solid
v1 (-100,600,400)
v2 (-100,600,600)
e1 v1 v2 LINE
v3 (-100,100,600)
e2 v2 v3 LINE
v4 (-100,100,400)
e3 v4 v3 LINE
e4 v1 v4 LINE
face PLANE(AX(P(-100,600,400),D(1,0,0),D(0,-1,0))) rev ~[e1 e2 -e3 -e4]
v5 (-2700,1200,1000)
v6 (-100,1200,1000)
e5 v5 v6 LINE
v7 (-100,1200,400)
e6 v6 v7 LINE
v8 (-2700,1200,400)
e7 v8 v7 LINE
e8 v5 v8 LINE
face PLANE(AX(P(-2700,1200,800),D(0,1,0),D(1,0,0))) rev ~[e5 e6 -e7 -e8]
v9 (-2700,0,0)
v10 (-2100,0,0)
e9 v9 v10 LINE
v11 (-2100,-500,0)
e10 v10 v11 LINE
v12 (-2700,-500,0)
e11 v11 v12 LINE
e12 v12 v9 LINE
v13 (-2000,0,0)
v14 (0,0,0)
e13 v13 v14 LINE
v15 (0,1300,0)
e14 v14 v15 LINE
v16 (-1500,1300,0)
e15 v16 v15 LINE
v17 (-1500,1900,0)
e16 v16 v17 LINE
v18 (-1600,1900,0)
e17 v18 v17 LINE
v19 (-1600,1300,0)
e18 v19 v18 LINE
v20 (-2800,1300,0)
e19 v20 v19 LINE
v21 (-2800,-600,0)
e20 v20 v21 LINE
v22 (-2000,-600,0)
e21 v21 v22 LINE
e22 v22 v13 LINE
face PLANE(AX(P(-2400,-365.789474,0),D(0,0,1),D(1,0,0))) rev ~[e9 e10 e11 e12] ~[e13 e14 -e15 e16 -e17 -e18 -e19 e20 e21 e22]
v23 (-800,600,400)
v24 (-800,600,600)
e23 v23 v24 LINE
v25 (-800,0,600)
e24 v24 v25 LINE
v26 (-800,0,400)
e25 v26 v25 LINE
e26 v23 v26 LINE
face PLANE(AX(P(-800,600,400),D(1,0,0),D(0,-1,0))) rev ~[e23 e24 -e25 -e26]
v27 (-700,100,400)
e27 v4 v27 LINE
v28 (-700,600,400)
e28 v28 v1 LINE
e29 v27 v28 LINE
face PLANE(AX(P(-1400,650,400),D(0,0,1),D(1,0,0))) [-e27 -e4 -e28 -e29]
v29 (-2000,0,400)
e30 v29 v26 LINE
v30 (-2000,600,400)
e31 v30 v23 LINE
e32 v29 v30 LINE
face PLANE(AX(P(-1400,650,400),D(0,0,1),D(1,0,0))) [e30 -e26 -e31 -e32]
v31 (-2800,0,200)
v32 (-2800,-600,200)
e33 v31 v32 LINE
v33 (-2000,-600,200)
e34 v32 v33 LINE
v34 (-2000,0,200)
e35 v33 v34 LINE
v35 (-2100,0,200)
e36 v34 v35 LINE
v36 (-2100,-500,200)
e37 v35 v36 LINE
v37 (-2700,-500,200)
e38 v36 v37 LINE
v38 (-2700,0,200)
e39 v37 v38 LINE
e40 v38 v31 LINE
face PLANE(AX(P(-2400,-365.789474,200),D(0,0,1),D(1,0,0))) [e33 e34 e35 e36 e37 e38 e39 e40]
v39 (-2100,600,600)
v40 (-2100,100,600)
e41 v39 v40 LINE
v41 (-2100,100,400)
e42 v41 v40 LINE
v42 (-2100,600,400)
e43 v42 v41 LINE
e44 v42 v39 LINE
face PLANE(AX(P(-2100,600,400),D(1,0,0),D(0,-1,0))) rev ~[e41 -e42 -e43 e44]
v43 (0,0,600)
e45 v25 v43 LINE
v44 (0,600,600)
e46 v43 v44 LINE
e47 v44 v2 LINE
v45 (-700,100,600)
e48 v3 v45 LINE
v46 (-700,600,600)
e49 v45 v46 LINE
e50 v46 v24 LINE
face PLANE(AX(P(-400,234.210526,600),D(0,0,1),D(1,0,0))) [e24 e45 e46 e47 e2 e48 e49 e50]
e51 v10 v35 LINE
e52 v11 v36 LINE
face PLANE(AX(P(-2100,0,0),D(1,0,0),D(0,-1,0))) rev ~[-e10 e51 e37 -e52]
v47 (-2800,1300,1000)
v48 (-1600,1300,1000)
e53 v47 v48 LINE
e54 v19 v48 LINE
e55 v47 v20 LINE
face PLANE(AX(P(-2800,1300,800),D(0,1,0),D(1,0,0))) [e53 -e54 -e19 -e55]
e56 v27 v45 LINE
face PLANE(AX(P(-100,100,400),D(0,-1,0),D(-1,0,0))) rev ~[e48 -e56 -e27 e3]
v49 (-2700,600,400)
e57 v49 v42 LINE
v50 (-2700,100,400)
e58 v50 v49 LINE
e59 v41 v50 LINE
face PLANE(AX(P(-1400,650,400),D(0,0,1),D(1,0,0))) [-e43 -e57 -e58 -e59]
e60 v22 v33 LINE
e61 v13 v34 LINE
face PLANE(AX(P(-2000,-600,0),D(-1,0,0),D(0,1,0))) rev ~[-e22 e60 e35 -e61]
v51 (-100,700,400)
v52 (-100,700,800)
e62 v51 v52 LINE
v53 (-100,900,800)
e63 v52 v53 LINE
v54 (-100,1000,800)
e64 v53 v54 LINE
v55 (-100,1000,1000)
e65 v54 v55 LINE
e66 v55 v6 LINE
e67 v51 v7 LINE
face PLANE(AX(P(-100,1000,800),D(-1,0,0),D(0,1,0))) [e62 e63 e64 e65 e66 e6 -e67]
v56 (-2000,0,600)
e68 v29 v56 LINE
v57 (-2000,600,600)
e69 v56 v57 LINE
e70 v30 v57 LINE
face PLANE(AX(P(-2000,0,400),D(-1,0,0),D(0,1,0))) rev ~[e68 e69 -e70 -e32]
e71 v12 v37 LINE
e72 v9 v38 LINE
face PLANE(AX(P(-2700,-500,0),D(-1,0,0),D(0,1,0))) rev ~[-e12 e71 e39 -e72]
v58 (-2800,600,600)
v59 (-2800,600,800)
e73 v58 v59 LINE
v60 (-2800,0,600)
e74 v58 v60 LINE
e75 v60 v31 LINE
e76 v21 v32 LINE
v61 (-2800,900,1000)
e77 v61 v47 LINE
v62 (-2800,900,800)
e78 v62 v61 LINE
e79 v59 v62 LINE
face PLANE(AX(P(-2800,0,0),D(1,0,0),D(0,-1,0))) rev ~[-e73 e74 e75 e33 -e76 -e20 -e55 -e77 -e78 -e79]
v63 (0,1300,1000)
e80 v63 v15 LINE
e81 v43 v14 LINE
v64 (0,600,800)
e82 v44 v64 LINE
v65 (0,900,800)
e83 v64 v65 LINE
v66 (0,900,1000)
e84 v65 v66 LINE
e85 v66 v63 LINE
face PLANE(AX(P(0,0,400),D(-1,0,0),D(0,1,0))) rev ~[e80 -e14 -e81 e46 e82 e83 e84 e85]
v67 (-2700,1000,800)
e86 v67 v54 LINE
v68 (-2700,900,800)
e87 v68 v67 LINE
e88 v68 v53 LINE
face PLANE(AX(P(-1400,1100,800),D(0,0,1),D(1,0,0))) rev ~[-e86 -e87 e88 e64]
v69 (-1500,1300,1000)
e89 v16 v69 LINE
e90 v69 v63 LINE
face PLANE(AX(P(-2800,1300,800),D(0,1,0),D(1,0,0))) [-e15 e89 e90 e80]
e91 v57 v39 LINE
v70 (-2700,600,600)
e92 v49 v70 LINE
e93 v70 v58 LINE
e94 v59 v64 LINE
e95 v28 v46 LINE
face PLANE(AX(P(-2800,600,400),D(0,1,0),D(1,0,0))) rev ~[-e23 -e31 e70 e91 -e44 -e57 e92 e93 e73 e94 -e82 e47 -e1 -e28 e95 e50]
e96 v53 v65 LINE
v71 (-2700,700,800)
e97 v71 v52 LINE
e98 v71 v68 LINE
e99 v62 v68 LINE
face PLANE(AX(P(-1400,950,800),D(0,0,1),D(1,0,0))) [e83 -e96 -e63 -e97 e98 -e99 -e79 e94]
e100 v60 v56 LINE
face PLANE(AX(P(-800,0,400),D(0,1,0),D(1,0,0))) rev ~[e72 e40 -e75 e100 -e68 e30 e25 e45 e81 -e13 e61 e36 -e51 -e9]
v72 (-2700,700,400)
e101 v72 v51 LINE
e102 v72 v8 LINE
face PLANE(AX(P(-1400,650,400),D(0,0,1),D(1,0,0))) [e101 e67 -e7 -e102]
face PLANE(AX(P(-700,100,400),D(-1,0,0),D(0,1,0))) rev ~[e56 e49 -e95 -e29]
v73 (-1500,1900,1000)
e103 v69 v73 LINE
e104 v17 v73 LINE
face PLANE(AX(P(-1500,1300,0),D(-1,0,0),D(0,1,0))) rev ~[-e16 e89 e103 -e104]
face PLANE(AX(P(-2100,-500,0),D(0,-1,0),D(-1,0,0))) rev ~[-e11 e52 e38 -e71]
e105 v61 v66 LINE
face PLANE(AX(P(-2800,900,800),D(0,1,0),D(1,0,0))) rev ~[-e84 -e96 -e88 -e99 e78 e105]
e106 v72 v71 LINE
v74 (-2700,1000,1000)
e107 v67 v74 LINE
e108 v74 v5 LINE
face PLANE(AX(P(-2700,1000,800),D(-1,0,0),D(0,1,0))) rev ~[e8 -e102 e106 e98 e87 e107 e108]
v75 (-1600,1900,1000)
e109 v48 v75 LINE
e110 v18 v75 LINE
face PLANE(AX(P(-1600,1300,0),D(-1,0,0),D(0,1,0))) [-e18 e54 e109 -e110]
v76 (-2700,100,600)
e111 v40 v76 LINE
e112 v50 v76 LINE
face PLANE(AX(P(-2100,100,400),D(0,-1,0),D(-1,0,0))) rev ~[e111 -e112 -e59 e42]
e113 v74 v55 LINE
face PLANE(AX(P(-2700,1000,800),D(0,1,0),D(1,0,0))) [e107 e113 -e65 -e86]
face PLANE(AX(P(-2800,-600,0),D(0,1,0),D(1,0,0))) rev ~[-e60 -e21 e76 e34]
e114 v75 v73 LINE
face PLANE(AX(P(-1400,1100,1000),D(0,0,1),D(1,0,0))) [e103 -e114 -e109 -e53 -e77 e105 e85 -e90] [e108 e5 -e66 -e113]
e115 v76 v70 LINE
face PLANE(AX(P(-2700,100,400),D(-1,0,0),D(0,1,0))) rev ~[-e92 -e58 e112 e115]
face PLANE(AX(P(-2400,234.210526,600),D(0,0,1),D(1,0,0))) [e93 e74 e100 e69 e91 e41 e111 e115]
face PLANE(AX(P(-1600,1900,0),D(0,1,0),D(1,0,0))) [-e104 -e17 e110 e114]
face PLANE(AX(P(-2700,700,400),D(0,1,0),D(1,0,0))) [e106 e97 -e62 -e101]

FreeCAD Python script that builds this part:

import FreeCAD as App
import Part
import Sketcher
from FreeCAD import Vector
Q = App.Units.Quantity

doc = App.newDocument("Part")
body = doc.addObject("PartDesign::Body", "Body")

# Sketch on XY plane
sketch1 = body.newObject("Sketcher::SketchObject", "Sketch")
sketch1.AttachmentSupport = (doc.getObject("XY_Plane"), [""])
sketch1.MapMode = "FlatFace"
sketch1.addGeometry([
    Part.LineSegment(Vector(-2800, 1300, 0), Vector(-2800, 0, 0)),
    Part.LineSegment(Vector(-2800, 0, 0), Vector(0, 0, 0)),
    Part.LineSegment(Vector(0, 0, 0), Vector(0, 1300, 0)),
    Part.LineSegment(Vector(0, 1300, 0), Vector(-2800, 1300, 0)),
], False)
sketch1.addConstraint([
    Sketcher.Constraint("Coincident", 0, 2, 1, 1),
    Sketcher.Constraint("Coincident", 1, 2, 2, 1),
    Sketcher.Constraint("Coincident", 2, 2, 3, 1),
    Sketcher.Constraint("Coincident", 3, 2, 0, 1),
    Sketcher.Constraint("Vertical", 0),
    Sketcher.Constraint("Horizontal", 1),
    Sketcher.Constraint("Vertical", 2),
    Sketcher.Constraint("Horizontal", 3),
    Sketcher.Constraint("Coincident", 1, 2, -1, 1),
    Sketcher.Constraint("DistanceX", 1, 1, 1, 2, Q("2800 mm")),
    Sketcher.Constraint("DistanceY", 0, 2, 0, 1, Q("1300 mm")),
])
pad1 = body.newObject("PartDesign::Pad", "Pad")
pad1.Profile = sketch1
pad1.Length = 400

# Sketch on XY plane
sketch2 = body.newObject("Sketcher::SketchObject", "Sketch001")
sketch2.AttachmentSupport = (doc.getObject("XY_Plane"), [""])
sketch2.MapMode = "FlatFace"
sketch2.AttachmentOffset = App.Placement(Vector(0, 0, 400), App.Rotation())
sketch2.addGeometry([
    Part.LineSegment(Vector(-2800, 1300, 0), Vector(-2800, 600, 0)),  # 0
    Part.LineSegment(Vector(-2800, 600, 0), Vector(0, 600, 0)),  # 1
    Part.LineSegment(Vector(0, 600, 0), Vector(0, 1300, 0)),  # 2
    Part.LineSegment(Vector(0, 1300, 0), Vector(-2800, 1300, 0)),  # 3
    Part.LineSegment(Vector(-100, 700, 0), Vector(-2700, 700, 0)),  # 4
    Part.LineSegment(Vector(-2700, 700, 0), Vector(-2700, 1200, 0)),  # 5
    Part.LineSegment(Vector(-2700, 1200, 0), Vector(-100, 1200, 0)),  # 6
    Part.LineSegment(Vector(-100, 1200, 0), Vector(-100, 700, 0)),  # 7
], False)
sketch2.addConstraint([
    Sketcher.Constraint("Coincident", 0, 2, 1, 1),
    Sketcher.Constraint("Coincident", 1, 2, 2, 1),
    Sketcher.Constraint("Coincident", 2, 2, 3, 1),
    Sketcher.Constraint("Coincident", 3, 2, 0, 1),
    Sketcher.Constraint("Coincident", 4, 2, 5, 1),
    Sketcher.Constraint("Coincident", 5, 2, 6, 1),
    Sketcher.Constraint("Coincident", 6, 2, 7, 1),
    Sketcher.Constraint("Coincident", 7, 2, 4, 1),
    Sketcher.Constraint("Vertical", 0),
    Sketcher.Constraint("Horizontal", 1),
    Sketcher.Constraint("Vertical", 2),
    Sketcher.Constraint("Horizontal", 3),
    Sketcher.Constraint("Horizontal", 4),
    Sketcher.Constraint("Vertical", 5),
    Sketcher.Constraint("Horizontal", 6),
    Sketcher.Constraint("Vertical", 7),
    Sketcher.Constraint("PointOnObject", 1, 2, -2),
    Sketcher.Constraint("DistanceX", 1, 1, 1, 2, Q("2800 mm")),
    Sketcher.Constraint("DistanceX", 4, 2, 4, 1, Q("2600 mm")),
    Sketcher.Constraint("DistanceY", 0, 2, 0, 1, Q("700 mm")),
    Sketcher.Constraint("DistanceY", 5, 1, 5, 2, Q("500 mm")),
    Sketcher.Constraint("DistanceY", -1, 1, 0, 2, Q("600 mm")),
    Sketcher.Constraint("DistanceX", 4, 2, -1, 1, Q("2700 mm")),
    Sketcher.Constraint("DistanceY", -1, 1, 4, 2, Q("700 mm")),
])
pad2 = body.newObject("PartDesign::Pad", "Pad001")
pad2.Profile = sketch2
pad2.Length = 400

# Sketch on XY plane
sketch3 = body.newObject("Sketcher::SketchObject", "Sketch002")
sketch3.AttachmentSupport = (doc.getObject("XY_Plane"), [""])
sketch3.MapMode = "FlatFace"
sketch3.AttachmentOffset = App.Placement(Vector(0, 0, 800), App.Rotation())
sketch3.addGeometry([
    Part.LineSegment(Vector(-2800, 1300, 0), Vector(-2800, 900, 0)),  # 0
    Part.LineSegment(Vector(-2800, 900, 0), Vector(0, 900, 0)),  # 1
    Part.LineSegment(Vector(0, 900, 0), Vector(0, 1300, 0)),  # 2
    Part.LineSegment(Vector(0, 1300, 0), Vector(-2800, 1300, 0)),  # 3
    Part.LineSegment(Vector(-100, 1000, 0), Vector(-2700, 1000, 0)),  # 4
    Part.LineSegment(Vector(-2700, 1000, 0), Vector(-2700, 1200, 0)),  # 5
    Part.LineSegment(Vector(-2700, 1200, 0), Vector(-100, 1200, 0)),  # 6
    Part.LineSegment(Vector(-100, 1200, 0), Vector(-100, 1000, 0)),  # 7
], False)
sketch3.addConstraint([
    Sketcher.Constraint("Coincident", 0, 2, 1, 1),
    Sketcher.Constraint("Coincident", 1, 2, 2, 1),
    Sketcher.Constraint("Coincident", 2, 2, 3, 1),
    Sketcher.Constraint("Coincident", 3, 2, 0, 1),
    Sketcher.Constraint("Coincident", 4, 2, 5, 1),
    Sketcher.Constraint("Coincident", 5, 2, 6, 1),
    Sketcher.Constraint("Coincident", 6, 2, 7, 1),
    Sketcher.Constraint("Coincident", 7, 2, 4, 1),
    Sketcher.Constraint("Vertical", 0),
    Sketcher.Constraint("Horizontal", 1),
    Sketcher.Constraint("Vertical", 2),
    Sketcher.Constraint("Horizontal", 3),
    Sketcher.Constraint("Horizontal", 4),
    Sketcher.Constraint("Vertical", 5),
    Sketcher.Constraint("Horizontal", 6),
    Sketcher.Constraint("Vertical", 7),
    Sketcher.Constraint("PointOnObject", 1, 2, -2),
    Sketcher.Constraint("DistanceX", 1, 1, 1, 2, Q("2800 mm")),
    Sketcher.Constraint("DistanceX", 4, 2, 4, 1, Q("2600 mm")),
    Sketcher.Constraint("DistanceY", 0, 2, 0, 1, Q("400 mm")),
    Sketcher.Constraint("DistanceY", 5, 1, 5, 2, Q("200 mm")),
    Sketcher.Constraint("DistanceY", -1, 1, 0, 2, Q("900 mm")),
    Sketcher.Constraint("DistanceX", 4, 2, -1, 1, Q("2700 mm")),
    Sketcher.Constraint("DistanceY", -1, 1, 4, 2, Q("1000 mm")),
])
pad3 = body.newObject("PartDesign::Pad", "Pad002")
pad3.Profile = sketch3
pad3.Length = 200

# Sketch on XY plane
sketch4 = body.newObject("Sketcher::SketchObject", "Sketch003")
sketch4.AttachmentSupport = (doc.getObject("XY_Plane"), [""])
sketch4.MapMode = "FlatFace"
sketch4.addGeometry([
    Part.LineSegment(Vector(-1600, 1900, 0), Vector(-1600, 1300, 0)),
    Part.LineSegment(Vector(-1600, 1300, 0), Vector(-1500, 1300, 0)),
    Part.LineSegment(Vector(-1500, 1300, 0), Vector(-1500, 1900, 0)),
    Part.LineSegment(Vector(-1500, 1900, 0), Vector(-1600, 1900, 0)),
], False)
sketch4.addConstraint([
    Sketcher.Constraint("Coincident", 0, 2, 1, 1),
    Sketcher.Constraint("Coincident", 1, 2, 2, 1),
    Sketcher.Constraint("Coincident", 2, 2, 3, 1),
    Sketcher.Constraint("Coincident", 3, 2, 0, 1),
    Sketcher.Constraint("Vertical", 0),
    Sketcher.Constraint("Horizontal", 1),
    Sketcher.Constraint("Vertical", 2),
    Sketcher.Constraint("Horizontal", 3),
    Sketcher.Constraint("DistanceX", 1, 1, 1, 2, Q("100 mm")),
    Sketcher.Constraint("DistanceY", 0, 2, 0, 1, Q("600 mm")),
    Sketcher.Constraint("DistanceX", 0, 2, -1, 1, Q("1600 mm")),
    Sketcher.Constraint("DistanceY", -1, 1, 0, 2, Q("1300 mm")),
])
pad4 = body.newObject("PartDesign::Pad", "Pad003")
pad4.Profile = sketch4
pad4.Length = 1000

# Sketch on XY plane
sketch5 = body.newObject("Sketcher::SketchObject", "Sketch004")
sketch5.AttachmentSupport = (doc.getObject("XY_Plane"), [""])
sketch5.MapMode = "FlatFace"
sketch5.AttachmentOffset = App.Placement(Vector(0, 0, 400), App.Rotation())
sketch5.addGeometry([
    Part.LineSegment(Vector(0, 0, 0), Vector(0, 600, 0)),  # 0
    Part.LineSegment(Vector(0, 600, 0), Vector(-100, 600, 0)),  # 1
    Part.LineSegment(Vector(-100, 600, 0), Vector(-100, 100, 0)),  # 2
    Part.LineSegment(Vector(-100, 100, 0), Vector(-700, 100, 0)),  # 3
    Part.LineSegment(Vector(-700, 100, 0), Vector(-700, 600, 0)),  # 4
    Part.LineSegment(Vector(-700, 600, 0), Vector(-800, 600, 0)),  # 5
    Part.LineSegment(Vector(-800, 600, 0), Vector(-800, 0, 0)),  # 6
    Part.LineSegment(Vector(-800, 0, 0), Vector(0, 0, 0)),  # 7
    Part.LineSegment(Vector(-2800, 600, 0), Vector(-2800, 0, 0)),  # 8
    Part.LineSegment(Vector(-2800, 0, 0), Vector(-2000, 0, 0)),  # 9
    Part.LineSegment(Vector(-2000, 0, 0), Vector(-2000, 600, 0)),  # 10
    Part.LineSegment(Vector(-2000, 600, 0), Vector(-2100, 600, 0)),  # 11
    Part.LineSegment(Vector(-2100, 600, 0), Vector(-2100, 100, 0)),  # 12
    Part.LineSegment(Vector(-2100, 100, 0), Vector(-2700, 100, 0)),  # 13
    Part.LineSegment(Vector(-2700, 100, 0), Vector(-2700, 600, 0)),  # 14
    Part.LineSegment(Vector(-2700, 600, 0), Vector(-2800, 600, 0)),  # 15
], False)
sketch5.addConstraint([
    Sketcher.Constraint("Coincident", 0, 2, 1, 1),
    Sketcher.Constraint("Coincident", 1, 2, 2, 1),
    Sketcher.Constraint("Coincident", 2, 2, 3, 1),
    Sketcher.Constraint("Coincident", 3, 2, 4, 1),
    Sketcher.Constraint("Coincident", 4, 2, 5, 1),
    Sketcher.Constraint("Coincident", 5, 2, 6, 1),
    Sketcher.Constraint("Coincident", 6, 2, 7, 1),
    Sketcher.Constraint("Coincident", 7, 2, 0, 1),
    Sketcher.Constraint("Coincident", 8, 2, 9, 1),
    Sketcher.Constraint("Coincident", 9, 2, 10, 1),
    Sketcher.Constraint("Coincident", 10, 2, 11, 1),
    Sketcher.Constraint("Coincident", 11, 2, 12, 1),
    Sketcher.Constraint("Coincident", 12, 2, 13, 1),
    Sketcher.Constraint("Coincident", 13, 2, 14, 1),
    Sketcher.Constraint("Coincident", 14, 2, 15, 1),
    Sketcher.Constraint("Coincident", 15, 2, 8, 1),
    Sketcher.Constraint("Vertical", 0),
    Sketcher.Constraint("Horizontal", 1),
    Sketcher.Constraint("Vertical", 2),
    Sketcher.Constraint("Horizontal", 3),
    Sketcher.Constraint("Vertical", 4),
    Sketcher.Constraint("Horizontal", 5),
    Sketcher.Constraint("Vertical", 6),
    Sketcher.Constraint("Horizontal", 7),
    Sketcher.Constraint("Vertical", 8),
    Sketcher.Constraint("Horizontal", 9),
    Sketcher.Constraint("Vertical", 10),
    Sketcher.Constraint("Horizontal", 11),
    Sketcher.Constraint("Vertical", 12),
    Sketcher.Constraint("Horizontal", 13),
    Sketcher.Constraint("Vertical", 14),
    Sketcher.Constraint("Horizontal", 15),
    Sketcher.Constraint("Coincident", 7, 2, -1, 1),
    Sketcher.Constraint("PointOnObject", 8, 2, -1),
    Sketcher.Constraint("Horizontal", 1, 2, 4, 2),
    Sketcher.Constraint("Horizontal", 5, 2, 10, 2),
    Sketcher.Constraint("Horizontal", 3, 2, 12, 2),
    Sketcher.Constraint("Horizontal", 11, 2, 14, 2),
    Sketcher.Constraint("Equal", 1, 5),
    Sketcher.Constraint("Equal", 7, 9),
    Sketcher.Constraint("Equal", 5, 11),
    Sketcher.Constraint("Equal", 3, 13),
    Sketcher.Constraint("Equal", 13, 0),
    Sketcher.Constraint("DistanceX", 1, 2, 1, 1, Q("100 mm")),
    Sketcher.Constraint("DistanceX", 3, 2, 3, 1, Q("600 mm")),
    Sketcher.Constraint("DistanceY", 2, 2, 2, 1, Q("500 mm")),
    Sketcher.Constraint("DistanceX", 8, 2, -1, 1, Q("2800 mm")),
])
pad5 = body.newObject("PartDesign::Pad", "Pad004")
pad5.Profile = sketch5
pad5.Length = 200

# Sketch on XY plane
sketch6 = body.newObject("Sketcher::SketchObject", "Sketch005")
sketch6.AttachmentSupport = (doc.getObject("XY_Plane"), [""])
sketch6.MapMode = "FlatFace"
sketch6.addGeometry([
    Part.LineSegment(Vector(-2700, 0, 0), Vector(-2800, 0, 0)),  # 0
    Part.LineSegment(Vector(-2800, 0, 0), Vector(-2800, -600, 0)),  # 1
    Part.LineSegment(Vector(-2800, -600, 0), Vector(-2000, -600, 0)),  # 2
    Part.LineSegment(Vector(-2000, -600, 0), Vector(-2000, 0, 0)),  # 3
    Part.LineSegment(Vector(-2000, 0, 0), Vector(-2100, 0, 0)),  # 4
    Part.LineSegment(Vector(-2100, 0, 0), Vector(-2100, -500, 0)),  # 5
    Part.LineSegment(Vector(-2100, -500, 0), Vector(-2700, -500, 0)),  # 6
    Part.LineSegment(Vector(-2700, -500, 0), Vector(-2700, 0, 0)),  # 7
], False)
sketch6.addConstraint([
    Sketcher.Constraint("Coincident", 0, 2, 1, 1),
    Sketcher.Constraint("Coincident", 1, 2, 2, 1),
    Sketcher.Constraint("Coincident", 2, 2, 3, 1),
    Sketcher.Constraint("Coincident", 3, 2, 4, 1),
    Sketcher.Constraint("Coincident", 4, 2, 5, 1),
    Sketcher.Constraint("Coincident", 5, 2, 6, 1),
    Sketcher.Constraint("Coincident", 6, 2, 7, 1),
    Sketcher.Constraint("Coincident", 7, 2, 0, 1),
    Sketcher.Constraint("Horizontal", 0),
    Sketcher.Constraint("Vertical", 1),
    Sketcher.Constraint("Horizontal", 2),
    Sketcher.Constraint("Vertical", 3),
    Sketcher.Constraint("Horizontal", 4),
    Sketcher.Constraint("Vertical", 5),
    Sketcher.Constraint("Horizontal", 6),
    Sketcher.Constraint("Vertical", 7),
    Sketcher.Constraint("PointOnObject", 0, 2, -1),
    Sketcher.Constraint("PointOnObject", 3, 2, -1),
    Sketcher.Constraint("Equal", 0, 4),
    Sketcher.Constraint("Equal", 6, 1),
    Sketcher.Constraint("DistanceX", 0, 2, 0, 1, Q("100 mm")),
    Sketcher.Constraint("DistanceX", 2, 1, 2, 2, Q("800 mm")),
    Sketcher.Constraint("DistanceY", 5, 2, 5, 1, Q("500 mm")),
    Sketcher.Constraint("DistanceX", 0, 2, -1, 1, Q("2800 mm")),
])
pad6 = body.newObject("PartDesign::Pad", "Pad005")
pad6.Profile = sketch6
pad6.Length = 200

doc.recompute()
